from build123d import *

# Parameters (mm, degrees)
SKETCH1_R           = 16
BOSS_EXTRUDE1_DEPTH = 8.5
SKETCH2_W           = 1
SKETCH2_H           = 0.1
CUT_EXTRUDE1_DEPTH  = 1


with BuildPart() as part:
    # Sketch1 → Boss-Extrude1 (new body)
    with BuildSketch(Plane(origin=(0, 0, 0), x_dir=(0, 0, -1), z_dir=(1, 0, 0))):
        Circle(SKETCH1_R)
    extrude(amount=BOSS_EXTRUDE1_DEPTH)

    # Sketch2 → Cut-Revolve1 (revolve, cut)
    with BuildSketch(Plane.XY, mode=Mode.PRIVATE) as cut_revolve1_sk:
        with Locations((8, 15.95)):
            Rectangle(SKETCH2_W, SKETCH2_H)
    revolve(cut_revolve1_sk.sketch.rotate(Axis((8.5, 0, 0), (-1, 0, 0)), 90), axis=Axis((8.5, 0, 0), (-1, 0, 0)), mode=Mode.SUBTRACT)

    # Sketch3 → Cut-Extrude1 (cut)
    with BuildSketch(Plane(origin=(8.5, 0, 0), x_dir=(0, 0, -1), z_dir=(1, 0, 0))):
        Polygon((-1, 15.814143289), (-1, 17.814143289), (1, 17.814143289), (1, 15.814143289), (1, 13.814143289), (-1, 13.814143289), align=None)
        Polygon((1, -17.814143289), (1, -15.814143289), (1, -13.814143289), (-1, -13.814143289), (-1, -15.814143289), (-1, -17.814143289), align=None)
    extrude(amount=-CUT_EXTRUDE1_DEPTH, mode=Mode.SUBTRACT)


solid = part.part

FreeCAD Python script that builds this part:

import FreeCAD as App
import Part
import Sketcher

doc = App.newDocument("Part")
body = doc.addObject("PartDesign::Body", "Body")

sketch1 = body.newObject("Sketcher::SketchObject", "Sketch")
sketch1.AttachmentSupport = (doc.getObject("YZ_Plane"), [""])
sketch1.MapMode = "FlatFace"
sketch1.addGeometry(Part.Circle(App.Vector(0, 0, 0), App.Vector(0, 0, 1), 16), False)
sketch1.addConstraint([
    Sketcher.Constraint("Coincident", 0, 3, -1, 1),
    Sketcher.Constraint("Diameter", 0, 32.0),
])
pad1 = body.newObject("PartDesign::Pad", "Pad")
pad1.Profile = sketch1
pad1.Length = 8.5

sketch2 = body.newObject("Sketcher::SketchObject", "Sketch001")
sketch2.AttachmentSupport = (doc.getObject("XY_Plane"), [""])
sketch2.MapMode = "FlatFace"
sketch2.addGeometry([
    Part.LineSegment(App.Vector(7.5, 16, 0), App.Vector(7.5, 15.9, 0)),
    Part.LineSegment(App.Vector(7.5, 15.9, 0), App.Vector(8.5, 15.9, 0)),
    Part.LineSegment(App.Vector(8.5, 15.9, 0), App.Vector(8.5, 16, 0)),
    Part.LineSegment(App.Vector(8.5, 16, 0), App.Vector(7.5, 16, 0)),
], False)
sketch2.addConstraint([
    Sketcher.Constraint("Coincident", 0, 2, 1, 1),
    Sketcher.Constraint("Coincident", 1, 2, 2, 1),
    Sketcher.Constraint("Coincident", 2, 2, 3, 1),
    Sketcher.Constraint("Coincident", 3, 2, 0, 1),
    Sketcher.Constraint("Vertical", 0),
    Sketcher.Constraint("Horizontal", 1),
    Sketcher.Constraint("Vertical", 2),
    Sketcher.Constraint("Horizontal", 3),
    Sketcher.Constraint("DistanceX", 1, 1, 1, 2, 1.0),
    Sketcher.Constraint("DistanceY", 0, 2, 0, 1, 0.1),
    Sketcher.Constraint("DistanceY", -1, 1, 2, 2, 16.0),
    Sketcher.Constraint("DistanceX", -1, 1, 0, 2, 7.5),
])
groove = body.newObject("PartDesign::Groove", "Groove")
groove.Profile = sketch2
groove.ReferenceAxis = (sketch2, ["H_Axis"])
groove.Angle = 360

sketch3 = body.newObject("Sketcher::SketchObject", "Sketch002")
sketch3.AttachmentSupport = (doc.getObject("YZ_Plane"), [""])
sketch3.MapMode = "FlatFace"
sketch3.AttachmentOffset = App.Placement(App.Vector(0, 0, 8.5), App.Rotation())
sketch3.addGeometry([
    Part.LineSegment(App.Vector(17.8, 1, 0), App.Vector(13.8, 1, 0)),
    Part.LineSegment(App.Vector(13.8, 1, 0), App.Vector(13.8, -1, 0)),
    Part.LineSegment(App.Vector(13.8, -1, 0), App.Vector(17.8, -1, 0)),
    Part.LineSegment(App.Vector(17.8, -1, 0), App.Vector(17.8, 1, 0)),
    Part.LineSegment(App.Vector(-17.8, -1, 0), App.Vector(-13.8, -1, 0)),
    Part.LineSegment(App.Vector(-13.8, -1, 0), App.Vector(-13.8, 1, 0)),
    Part.LineSegment(App.Vector(-13.8, 1, 0), App.Vector(-17.8, 1, 0)),
    Part.LineSegment(App.Vector(-17.8, 1, 0), App.Vector(-17.8, -1, 0)),
], False)
sketch3.addConstraint([
    Sketcher.Constraint("Coincident", 0, 2, 1, 1),
    Sketcher.Constraint("Coincident", 1, 2, 2, 1),
    Sketcher.Constraint("Coincident", 2, 2, 3, 1),
    Sketcher.Constraint("Coincident", 3, 2, 0, 1),
    Sketcher.Constraint("Coincident", 4, 2, 5, 1),
    Sketcher.Constraint("Coincident", 5, 2, 6, 1),
    Sketcher.Constraint("Coincident", 6, 2, 7, 1),
    Sketcher.Constraint("Coincident", 7, 2, 4, 1),
    Sketcher.Constraint("Horizontal", 0),
    Sketcher.Constraint("Vertical", 1),
    Sketcher.Constraint("Horizontal", 2),
    Sketcher.Constraint("Vertical", 3),
    Sketcher.Constraint("Horizontal", 4),
    Sketcher.Constraint("Vertical", 5),
    Sketcher.Constraint("Horizontal", 6),
    Sketcher.Constraint("Vertical", 7),
    Sketcher.Constraint("Symmetric", 0, 2, 4, 2, -1, 1),
    Sketcher.Constraint("Symmetric", 2, 2, 6, 2, -1, 1),
    Sketcher.Constraint("Horizontal", 2, 2, 4, 2),
    Sketcher.Constraint("DistanceX", 0, 2, 0, 1, 4.0),
    Sketcher.Constraint("DistanceY", 1, 2, 1, 1, 2.0),
    Sketcher.Constraint("DistanceX", -1, 1, 0, 2, 13.814143),
])
pocket1 = body.newObject("PartDesign::Pocket", "Pocket")
pocket1.Profile = sketch3
pocket1.Length = 1

doc.recompute()
